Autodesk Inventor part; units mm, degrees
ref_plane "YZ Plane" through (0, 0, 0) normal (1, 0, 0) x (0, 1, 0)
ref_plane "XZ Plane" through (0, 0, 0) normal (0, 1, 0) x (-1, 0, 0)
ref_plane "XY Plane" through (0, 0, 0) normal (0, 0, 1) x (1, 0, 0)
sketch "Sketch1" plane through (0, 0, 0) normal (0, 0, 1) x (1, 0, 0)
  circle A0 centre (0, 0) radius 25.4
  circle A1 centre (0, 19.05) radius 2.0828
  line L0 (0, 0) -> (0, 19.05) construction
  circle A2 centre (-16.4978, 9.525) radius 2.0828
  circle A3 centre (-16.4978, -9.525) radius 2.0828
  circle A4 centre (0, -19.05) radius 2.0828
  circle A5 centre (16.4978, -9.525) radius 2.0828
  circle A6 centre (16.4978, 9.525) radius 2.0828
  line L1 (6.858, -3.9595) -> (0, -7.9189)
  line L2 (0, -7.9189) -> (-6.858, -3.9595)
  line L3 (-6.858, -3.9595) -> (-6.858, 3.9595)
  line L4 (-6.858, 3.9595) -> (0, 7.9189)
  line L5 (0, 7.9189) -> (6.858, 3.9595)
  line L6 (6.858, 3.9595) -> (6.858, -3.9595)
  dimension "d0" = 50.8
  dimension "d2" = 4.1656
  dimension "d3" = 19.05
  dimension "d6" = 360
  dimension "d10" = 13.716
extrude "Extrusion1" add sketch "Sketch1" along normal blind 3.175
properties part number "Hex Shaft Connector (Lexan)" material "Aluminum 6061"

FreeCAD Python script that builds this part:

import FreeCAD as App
import Part
import Sketcher
from FreeCAD import Vector
Q = App.Units.Quantity

doc = App.newDocument("Part")
body = doc.addObject("PartDesign::Body", "Body")

# Sketch on XY plane
sketch1 = body.newObject("Sketcher::SketchObject", "Sketch")
sketch1.AttachmentSupport = (doc.getObject("XY_Plane"), [""])
sketch1.MapMode = "FlatFace"
sketch1.addGeometry(Part.Circle(Vector(0, 0, 0), Vector(0, 0, 1), 25.4), False)
sketch1.addGeometry(Part.Circle(Vector(0, -19.1, 0), Vector(0, 0, 1), 2.1), False)
sketch1.addGeometry(Part.Circle(Vector(-16.5, -9.5, 0), Vector(0, 0, 1), 2.1), False)
sketch1.addGeometry(Part.LineSegment(Vector(6.9, 4, 0), Vector(6.9, -4, 0)), False)
sketch1.addGeometry(Part.LineSegment(Vector(6.9, -4, 0), Vector(0, -7.9, 0)), False)
sketch1.addGeometry(Part.LineSegment(Vector(0, -7.9, 0), Vector(-6.9, -4, 0)), False)
sketch1.addGeometry(Part.LineSegment(Vector(-6.9, -4, 0), Vector(-6.9, 4, 0)), False)
sketch1.addGeometry(Part.LineSegment(Vector(-6.9, 4, 0), Vector(0, 7.9, 0)), False)
sketch1.addGeometry(Part.LineSegment(Vector(0, 7.9, 0), Vector(6.9, 4, 0)), False)
sketch1.addGeometry(Part.Circle(Vector(16.5, -9.5, 0), Vector(0, 0, 1), 2.1), False)
sketch1.addGeometry(Part.Circle(Vector(-16.5, 9.5, 0), Vector(0, 0, 1), 2.1), False)
sketch1.addGeometry(Part.Circle(Vector(0, 19.1, 0), Vector(0, 0, 1), 2.1), False)
sketch1.addGeometry(Part.Circle(Vector(16.5, 9.5, 0), Vector(0, 0, 1), 2.1), False)
sketch1.addConstraint(Sketcher.Constraint("Coincident", 3, 2, 4, 1))
sketch1.addConstraint(Sketcher.Constraint("Coincident", 4, 2, 5, 1))
sketch1.addConstraint(Sketcher.Constraint("Coincident", 5, 2, 6, 1))
sketch1.addConstraint(Sketcher.Constraint("Coincident", 6, 2, 7, 1))
sketch1.addConstraint(Sketcher.Constraint("Coincident", 7, 2, 8, 1))
sketch1.addConstraint(Sketcher.Constraint("Coincident", 8, 2, 3, 1))
sketch1.addConstraint(Sketcher.Constraint("Vertical", 3))
sketch1.addConstraint(Sketcher.Constraint("Vertical", 6))
sketch1.addConstraint(Sketcher.Constraint("Coincident", 0, 3, -1, 1))
sketch1.addConstraint(Sketcher.Constraint("Equal", 1, 2))
sketch1.addConstraint(Sketcher.Constraint("Equal", 2, 9))
sketch1.addConstraint(Sketcher.Constraint("Equal", 9, 10))
sketch1.addConstraint(Sketcher.Constraint("Equal", 10, 11))
sketch1.addConstraint(Sketcher.Constraint("Equal", 11, 12))
sketch1.addConstraint(Sketcher.Constraint("Symmetric", 9, 3, 10, 3, -1, 1))
sketch1.addConstraint(Sketcher.Constraint("Symmetric", 1, 3, 11, 3, -1, 1))
sketch1.addConstraint(Sketcher.Constraint("Symmetric", 2, 3, 12, 3, -1, 1))
sketch1.addConstraint(Sketcher.Constraint("Symmetric", 3, 2, 6, 2, -1, 1))
sketch1.addConstraint(Sketcher.Constraint("Symmetric", 4, 2, 7, 2, -1, 1))
sketch1.addConstraint(Sketcher.Constraint("Symmetric", 2, 3, 9, 3, -2))
sketch1.addConstraint(Sketcher.Constraint("PointOnObject", 1, 3, -2))
sketch1.addConstraint(Sketcher.Constraint("PointOnObject", 4, 2, -2))
sketch1.addConstraint(Sketcher.Constraint("Parallel", 5, 8))
sketch1.addConstraint(Sketcher.Constraint("Horizontal", 3, 2, 5, 2))
sketch1.addConstraint(Sketcher.Constraint("Diameter", 0, Q("2 in")))
sketch1.addConstraint(Sketcher.Constraint("Diameter", 1, Q("0.164 in")))
sketch1.addConstraint(Sketcher.Constraint("DistanceY", 1, 3, -1, 1, Q("0.75 in")))
sketch1.addConstraint(Sketcher.Constraint("DistanceY", 2, 3, 10, 3, Q("0.75 in")))
sketch1.addConstraint(Sketcher.Constraint("DistanceX", 5, 2, 3, 2, Q("0.54 in")))
sketch1.addConstraint(Sketcher.Constraint("Angle", 4, Q("-150.0004 deg")))
sketch1.addConstraint(Sketcher.Constraint("DistanceY", 3, 2, 3, 1, 7.919))
sketch1.addConstraint(Sketcher.Constraint("DistanceX", 2, 3, -1, 1, 16.4978))
pad1 = body.newObject("PartDesign::Pad", "Pad")
pad1.Profile = sketch1
pad1.Length = Q("0.125 in")

doc.recompute()
